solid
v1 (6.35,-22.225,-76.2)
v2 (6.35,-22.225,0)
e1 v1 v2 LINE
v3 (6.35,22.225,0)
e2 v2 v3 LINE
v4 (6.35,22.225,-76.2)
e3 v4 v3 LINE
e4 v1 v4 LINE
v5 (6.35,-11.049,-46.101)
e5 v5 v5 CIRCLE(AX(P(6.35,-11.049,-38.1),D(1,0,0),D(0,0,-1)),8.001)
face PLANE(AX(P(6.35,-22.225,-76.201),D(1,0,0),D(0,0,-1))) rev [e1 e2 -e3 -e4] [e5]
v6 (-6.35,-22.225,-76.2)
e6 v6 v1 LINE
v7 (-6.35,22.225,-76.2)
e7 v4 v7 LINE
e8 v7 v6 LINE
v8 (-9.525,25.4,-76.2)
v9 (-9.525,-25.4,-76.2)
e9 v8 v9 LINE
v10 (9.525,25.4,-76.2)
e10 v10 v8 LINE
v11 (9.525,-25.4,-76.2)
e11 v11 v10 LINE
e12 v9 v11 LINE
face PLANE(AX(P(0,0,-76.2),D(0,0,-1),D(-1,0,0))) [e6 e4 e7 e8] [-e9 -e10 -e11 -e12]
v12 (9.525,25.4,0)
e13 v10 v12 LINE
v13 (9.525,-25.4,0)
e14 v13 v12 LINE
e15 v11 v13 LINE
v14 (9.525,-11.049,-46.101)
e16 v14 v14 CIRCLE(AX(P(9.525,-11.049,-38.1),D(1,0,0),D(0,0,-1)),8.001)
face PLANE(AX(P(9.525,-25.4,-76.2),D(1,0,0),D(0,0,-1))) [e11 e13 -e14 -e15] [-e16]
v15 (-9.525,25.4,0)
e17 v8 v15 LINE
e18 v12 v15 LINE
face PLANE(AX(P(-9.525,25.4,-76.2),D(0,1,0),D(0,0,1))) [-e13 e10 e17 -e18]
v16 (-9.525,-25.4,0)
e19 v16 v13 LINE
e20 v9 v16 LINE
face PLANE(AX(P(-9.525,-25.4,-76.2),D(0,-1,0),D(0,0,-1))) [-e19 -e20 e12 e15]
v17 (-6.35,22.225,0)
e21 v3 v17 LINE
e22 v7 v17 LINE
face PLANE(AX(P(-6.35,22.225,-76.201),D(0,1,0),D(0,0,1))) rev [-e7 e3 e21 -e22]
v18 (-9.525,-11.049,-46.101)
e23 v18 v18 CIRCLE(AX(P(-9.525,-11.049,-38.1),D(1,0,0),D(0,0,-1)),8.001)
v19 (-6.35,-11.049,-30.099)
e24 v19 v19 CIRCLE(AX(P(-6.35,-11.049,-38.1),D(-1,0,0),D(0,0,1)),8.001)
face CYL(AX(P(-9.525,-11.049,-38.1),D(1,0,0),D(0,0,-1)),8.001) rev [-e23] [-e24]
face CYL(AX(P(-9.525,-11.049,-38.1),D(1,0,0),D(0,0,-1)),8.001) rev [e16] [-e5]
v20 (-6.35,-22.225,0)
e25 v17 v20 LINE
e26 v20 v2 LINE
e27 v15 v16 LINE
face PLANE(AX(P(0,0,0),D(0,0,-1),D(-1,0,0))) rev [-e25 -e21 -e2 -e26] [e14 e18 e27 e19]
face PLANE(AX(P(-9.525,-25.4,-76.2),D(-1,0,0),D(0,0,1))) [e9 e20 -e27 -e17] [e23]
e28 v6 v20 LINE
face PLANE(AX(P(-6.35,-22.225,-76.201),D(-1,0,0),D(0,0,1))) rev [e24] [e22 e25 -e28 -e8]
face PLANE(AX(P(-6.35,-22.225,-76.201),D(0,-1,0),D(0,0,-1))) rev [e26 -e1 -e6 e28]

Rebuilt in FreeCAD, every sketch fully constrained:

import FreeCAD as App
import Part
import Sketcher
from FreeCAD import Vector
Q = App.Units.Quantity


def add_polygon(sketch, points):
    """Adds a closed chain of lines whose ends are joined by coincident constraints."""
    first, n = sketch.GeometryCount, len(points)
    for a, b in zip(points, points[1:] + points[:1]):
        sketch.addGeometry(Part.LineSegment(App.Vector(*a, 0), App.Vector(*b, 0)), False)
    for i in range(n):
        sketch.addConstraint(Sketcher.Constraint("Coincident", first + i, 2, first + (i + 1) % n, 1))

doc = App.newDocument("Part")
body = doc.addObject("PartDesign::Body", "Body")

# Sketch on XY plane
sketch1 = body.newObject("Sketcher::SketchObject", "Sketch")
sketch1.AttachmentSupport = (doc.getObject("XY_Plane"), [""])
sketch1.MapMode = "FlatFace"
add_polygon(sketch1, [(-10, 25), (-10, -25), (10, -25), (10, 25)])  # lines 0-3
sketch1.addConstraint([
    Sketcher.Constraint("Vertical", 0),
    Sketcher.Constraint("Horizontal", 1),
    Sketcher.Constraint("Vertical", 2),
    Sketcher.Constraint("Horizontal", 3),
    Sketcher.Constraint("Symmetric", 0, 2, 2, 2, -1, 1),
    Sketcher.Constraint("DistanceY", 0, 2, 0, 1, Q("2 in")),
    Sketcher.Constraint("DistanceX", 1, 1, 1, 2, Q("0.75 in")),
])
pad1 = body.newObject("PartDesign::Pad", "Pad")
pad1.Profile = sketch1
pad1.Length = Q("3 in")
pad1.Reversed = True

# Sketch on XY plane
sketch2 = body.newObject("Sketcher::SketchObject", "Sketch001")
sketch2.AttachmentSupport = (doc.getObject("XY_Plane"), [""])
sketch2.MapMode = "FlatFace"
add_polygon(sketch2, [(-6, 22), (-6, -22), (6, -22), (6, 22)])  # lines 0-3
sketch2.addConstraint([
    Sketcher.Constraint("Vertical", 0),
    Sketcher.Constraint("Horizontal", 1),
    Sketcher.Constraint("Vertical", 2),
    Sketcher.Constraint("Horizontal", 3),
    Sketcher.Constraint("Symmetric", 0, 2, 2, 2, -1, 1),
    Sketcher.Constraint("DistanceX", 1, 1, 1, 2, Q("0.5 in")),
    Sketcher.Constraint("DistanceY", 0, 2, 0, 1, Q("1.75 in")),
])
pocket1 = body.newObject("PartDesign::Pocket", "Pocket")
pocket1.Profile = sketch2
pocket1.Type = "UpToFirst"

# Sketch on YZ plane
sketch3 = body.newObject("Sketcher::SketchObject", "Sketch002")
sketch3.AttachmentSupport = (doc.getObject("YZ_Plane"), [""])
sketch3.MapMode = "FlatFace"
sketch3.AttachmentOffset = App.Placement(Vector(0, 0, 0.375 * 25.4), App.Rotation())
sketch3.addGeometry(Part.Circle(Vector(-11, -38, 0), Vector(0, 0, 1), 8), False)
sketch3.addConstraint([
    Sketcher.Constraint("Diameter", 0, Q("0.63 in")),
    Sketcher.Constraint("DistanceY", 0, 3, -1, 1, Q("1.5 in")),
    Sketcher.Constraint("DistanceX", 0, 3, -1, 1, Q("0.435 in")),
])
pocket2 = body.newObject("PartDesign::Pocket", "Pocket001")
pocket2.Profile = sketch3
pocket2.Type = "ThroughAll"

doc.recompute()
